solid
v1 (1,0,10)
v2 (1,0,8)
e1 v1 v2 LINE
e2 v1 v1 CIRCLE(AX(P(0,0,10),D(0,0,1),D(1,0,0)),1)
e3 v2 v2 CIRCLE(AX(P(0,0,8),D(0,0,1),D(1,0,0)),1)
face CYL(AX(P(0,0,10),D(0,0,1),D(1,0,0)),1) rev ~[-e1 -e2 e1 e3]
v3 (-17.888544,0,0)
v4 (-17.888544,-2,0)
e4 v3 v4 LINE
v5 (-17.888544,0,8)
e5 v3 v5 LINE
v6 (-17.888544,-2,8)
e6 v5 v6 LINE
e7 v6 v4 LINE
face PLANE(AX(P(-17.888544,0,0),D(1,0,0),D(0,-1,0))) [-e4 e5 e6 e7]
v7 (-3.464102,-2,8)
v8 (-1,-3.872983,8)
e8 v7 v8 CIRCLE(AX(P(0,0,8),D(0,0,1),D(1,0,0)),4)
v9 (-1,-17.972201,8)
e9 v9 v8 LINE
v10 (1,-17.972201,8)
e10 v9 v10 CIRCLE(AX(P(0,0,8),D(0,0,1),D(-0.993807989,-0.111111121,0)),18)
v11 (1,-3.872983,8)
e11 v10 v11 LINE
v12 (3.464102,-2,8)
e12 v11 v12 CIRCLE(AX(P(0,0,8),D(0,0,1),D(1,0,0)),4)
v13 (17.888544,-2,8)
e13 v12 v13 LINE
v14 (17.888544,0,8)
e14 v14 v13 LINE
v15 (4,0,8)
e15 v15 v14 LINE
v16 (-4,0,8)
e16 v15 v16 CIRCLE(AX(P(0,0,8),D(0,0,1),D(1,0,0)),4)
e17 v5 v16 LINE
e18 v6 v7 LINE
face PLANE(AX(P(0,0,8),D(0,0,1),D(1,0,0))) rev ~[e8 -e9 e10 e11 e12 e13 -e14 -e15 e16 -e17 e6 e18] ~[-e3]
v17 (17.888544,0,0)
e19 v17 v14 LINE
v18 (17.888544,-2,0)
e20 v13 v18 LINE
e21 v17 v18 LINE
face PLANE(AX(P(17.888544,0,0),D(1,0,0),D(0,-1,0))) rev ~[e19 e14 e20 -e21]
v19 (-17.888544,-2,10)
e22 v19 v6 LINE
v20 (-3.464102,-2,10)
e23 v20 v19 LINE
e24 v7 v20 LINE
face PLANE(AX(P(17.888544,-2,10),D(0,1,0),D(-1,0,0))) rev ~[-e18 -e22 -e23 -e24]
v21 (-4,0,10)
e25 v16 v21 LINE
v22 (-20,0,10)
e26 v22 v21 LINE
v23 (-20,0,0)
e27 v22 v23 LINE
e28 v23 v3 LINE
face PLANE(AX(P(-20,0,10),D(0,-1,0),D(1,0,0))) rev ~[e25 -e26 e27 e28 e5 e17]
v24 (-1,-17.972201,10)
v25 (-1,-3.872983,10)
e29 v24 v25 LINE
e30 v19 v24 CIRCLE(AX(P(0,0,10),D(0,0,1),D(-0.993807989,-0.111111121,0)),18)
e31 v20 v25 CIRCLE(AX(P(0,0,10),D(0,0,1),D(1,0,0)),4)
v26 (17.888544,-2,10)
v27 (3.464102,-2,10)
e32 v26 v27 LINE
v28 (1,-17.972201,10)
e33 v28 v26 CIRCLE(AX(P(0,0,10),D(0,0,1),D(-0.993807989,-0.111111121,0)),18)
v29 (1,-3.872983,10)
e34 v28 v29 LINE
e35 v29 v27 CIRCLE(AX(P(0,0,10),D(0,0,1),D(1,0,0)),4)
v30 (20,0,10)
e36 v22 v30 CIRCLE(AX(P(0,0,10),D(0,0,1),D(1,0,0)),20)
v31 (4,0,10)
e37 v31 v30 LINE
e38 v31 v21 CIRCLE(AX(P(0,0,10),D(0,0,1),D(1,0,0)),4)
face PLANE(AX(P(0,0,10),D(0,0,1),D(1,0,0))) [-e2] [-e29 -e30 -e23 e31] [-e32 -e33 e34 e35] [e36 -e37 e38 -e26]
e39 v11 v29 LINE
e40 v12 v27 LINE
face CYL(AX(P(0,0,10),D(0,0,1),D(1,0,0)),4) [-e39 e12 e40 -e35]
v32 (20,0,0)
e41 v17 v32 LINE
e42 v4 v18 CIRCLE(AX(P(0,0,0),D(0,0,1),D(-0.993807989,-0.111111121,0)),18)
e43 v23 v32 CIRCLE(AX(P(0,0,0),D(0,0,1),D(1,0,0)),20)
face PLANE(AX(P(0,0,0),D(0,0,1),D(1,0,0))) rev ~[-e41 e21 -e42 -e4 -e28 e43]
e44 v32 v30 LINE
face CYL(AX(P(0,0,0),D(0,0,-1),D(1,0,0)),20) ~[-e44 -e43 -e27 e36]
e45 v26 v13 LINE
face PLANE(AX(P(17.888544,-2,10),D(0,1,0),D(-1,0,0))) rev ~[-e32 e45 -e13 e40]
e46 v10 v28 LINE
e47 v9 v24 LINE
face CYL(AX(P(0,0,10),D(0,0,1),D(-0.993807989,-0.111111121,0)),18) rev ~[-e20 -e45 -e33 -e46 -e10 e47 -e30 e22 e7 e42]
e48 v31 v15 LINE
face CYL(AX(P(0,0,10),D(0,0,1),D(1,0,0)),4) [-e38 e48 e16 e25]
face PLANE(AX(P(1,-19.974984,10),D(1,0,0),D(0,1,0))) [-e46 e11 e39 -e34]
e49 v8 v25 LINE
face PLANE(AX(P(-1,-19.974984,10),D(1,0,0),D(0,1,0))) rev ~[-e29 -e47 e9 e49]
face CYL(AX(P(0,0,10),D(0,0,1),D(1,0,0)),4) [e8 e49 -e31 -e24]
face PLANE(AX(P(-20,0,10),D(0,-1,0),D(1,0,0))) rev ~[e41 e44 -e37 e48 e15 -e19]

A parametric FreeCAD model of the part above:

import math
import FreeCAD as App
import Part
import Sketcher

V = App.Vector
Q = App.Units.Quantity

doc = App.newDocument("Part")
params = doc.addObject("Spreadsheet::Sheet", "Params")
for row, (alias, value) in enumerate([
    ("sketch1_diameter", "40 mm"),
    ("pad1_length", "10 mm"),
    ("sketch2_radius", "20 mm"),
    ("pocket1_length", "25 mm"),
    ("sketch3_radius", "20 mm"),
    ("pocket2_length", "25 mm"),
    ("sketch4_radius", "18 mm"),
    ("pocket3_length", "25 mm"),
    ("sketch5_height", "2 mm"),
    ("pocket4_length", "8 mm"),
    ("sketch6_width", "2 mm"),
    ("pad2_length", "2 mm"),
    ("sketch7_diameter", "8 mm"),
    ("pad3_length", "2 mm"),
    ("sketch8_diameter", "2 mm"),
    ("pocket5_length", "25 mm"),
], start=1):
    params.set(f"A{row}", alias)
    params.set(f"B{row}", "=" + value)
    params.setAlias(f"B{row}", alias)

body = doc.addObject("PartDesign::Body", "Body")

sketch1 = doc.addObject("Sketcher::SketchObject", "Sketch")
body.addObject(sketch1)
sketch1.AttachmentSupport = (doc.XY_Plane, [""])
sketch1.MapMode = "FlatFace"
sketch1.addGeometry(Part.Circle(V(0, 0, 0), V(0, 0, 1), 20), False)
sketch1.addConstraint(Sketcher.Constraint("Coincident", 0, 3, -1, 1))
sketch1.addConstraint(Sketcher.Constraint("Diameter", 0, Q("40 mm")))
sketch1.setExpression("Constraints[1]", "Params.sketch1_diameter")
pad1 = doc.addObject("PartDesign::Pad", "Pad")
body.addObject(pad1)
pad1.Profile = sketch1
pad1.setExpression("Length", "Params.pad1_length")

sketch2 = doc.addObject("Sketcher::SketchObject", "Sketch001")
body.addObject(sketch2)
sketch2.AttachmentSupport = (doc.XY_Plane, [""])
sketch2.MapMode = "FlatFace"
sketch2.AttachmentOffset = App.Placement(V(0, 0, 10), App.Rotation())
sketch2.addGeometry(Part.LineSegment(V(-20, 0, 0), V(20, 0, 0)), False)
sketch2.addGeometry(Part.ArcOfCircle(Part.Circle(V(0, 0, 0), V(0, 0, 1), 20), math.radians(0), math.radians(180)), False)
sketch2.addConstraint(Sketcher.Constraint("Coincident", 0, 1, 1, 2))
sketch2.addConstraint(Sketcher.Constraint("Coincident", 1, 1, 0, 2))
sketch2.addConstraint(Sketcher.Constraint("Horizontal", 0))
sketch2.addConstraint(Sketcher.Constraint("Coincident", 1, 3, -1, 1))
sketch2.addConstraint(Sketcher.Constraint("PointOnObject", 0, 1, -1))
sketch2.addConstraint(Sketcher.Constraint("Radius", 1, Q("20 mm")))
sketch2.setExpression("Constraints[5]", "Params.sketch2_radius")
pocket1 = doc.addObject("PartDesign::Pocket", "Pocket")
body.addObject(pocket1)
pocket1.Profile = sketch2
pocket1.setExpression("Length", "Params.pocket1_length")

sketch3 = doc.addObject("Sketcher::SketchObject", "Sketch002")
body.addObject(sketch3)
sketch3.AttachmentSupport = (doc.XY_Plane, [""])
sketch3.MapMode = "FlatFace"
sketch3.AttachmentOffset = App.Placement(V(0, 0, 10), App.Rotation())
sketch3.addGeometry(Part.LineSegment(V(-20, 0, 0), V(20, 0, 0)), False)
sketch3.addGeometry(Part.ArcOfCircle(Part.Circle(V(0, 0, 0), V(0, 0, 1), 20), math.radians(0), math.radians(180)), False)
sketch3.addConstraint(Sketcher.Constraint("Coincident", 0, 1, 1, 2))
sketch3.addConstraint(Sketcher.Constraint("Coincident", 1, 1, 0, 2))
sketch3.addConstraint(Sketcher.Constraint("Horizontal", 0))
sketch3.addConstraint(Sketcher.Constraint("Coincident", 1, 3, -1, 1))
sketch3.addConstraint(Sketcher.Constraint("PointOnObject", 0, 1, -1))
sketch3.addConstraint(Sketcher.Constraint("Radius", 1, Q("20 mm")))
sketch3.setExpression("Constraints[5]", "Params.sketch3_radius")
pocket2 = doc.addObject("PartDesign::Pocket", "Pocket001")
body.addObject(pocket2)
pocket2.Profile = sketch3
pocket2.setExpression("Length", "Params.pocket2_length")

sketch4 = doc.addObject("Sketcher::SketchObject", "Sketch003")
body.addObject(sketch4)
sketch4.AttachmentSupport = (doc.XY_Plane, [""])
sketch4.MapMode = "FlatFace"
sketch4.AttachmentOffset = App.Placement(V(0, 0, 10), App.Rotation())
sketch4.addGeometry(Part.ArcOfCircle(Part.Circle(V(0, 0, 0), V(0, 0, 1), 18), math.radians(-174), math.radians(-6)), False)
sketch4.addGeometry(Part.LineSegment(V(18, -2, 0), V(-18, -2, 0)), False)
sketch4.addConstraint(Sketcher.Constraint("Coincident", 0, 1, 1, 2))
sketch4.addConstraint(Sketcher.Constraint("Coincident", 1, 1, 0, 2))
sketch4.addConstraint(Sketcher.Constraint("Horizontal", 1))
sketch4.addConstraint(Sketcher.Constraint("Coincident", 0, 3, -1, 1))
sketch4.addConstraint(Sketcher.Constraint("Radius", 0, Q("18 mm")))
sketch4.addConstraint(Sketcher.Constraint("DistanceY", 0, 1, -1, 1, Q("2 mm")))
sketch4.setExpression("Constraints[4]", "Params.sketch4_radius")
pocket3 = doc.addObject("PartDesign::Pocket", "Pocket002")
body.addObject(pocket3)
pocket3.Profile = sketch4
pocket3.setExpression("Length", "Params.pocket3_length")

sketch5 = doc.addObject("Sketcher::SketchObject", "Sketch004")
body.addObject(sketch5)
sketch5.AttachmentSupport = (doc.XY_Plane, [""])
sketch5.MapMode = "FlatFace"
sketch5.addGeometry(Part.LineSegment(V(-17.9, -2, 0), V(-17.9, 0, 0)), False)
sketch5.addGeometry(Part.LineSegment(V(-17.9, 0, 0), V(17.9, 0, 0)), False)
sketch5.addGeometry(Part.LineSegment(V(17.9, 0, 0), V(17.9, -2, 0)), False)
sketch5.addGeometry(Part.LineSegment(V(17.9, -2, 0), V(-17.9, -2, 0)), False)
sketch5.addConstraint(Sketcher.Constraint("Coincident", 0, 2, 1, 1))
sketch5.addConstraint(Sketcher.Constraint("Coincident", 1, 2, 2, 1))
sketch5.addConstraint(Sketcher.Constraint("Coincident", 2, 2, 3, 1))
sketch5.addConstraint(Sketcher.Constraint("Coincident", 3, 2, 0, 1))
sketch5.addConstraint(Sketcher.Constraint("Vertical", 0))
sketch5.addConstraint(Sketcher.Constraint("Horizontal", 1))
sketch5.addConstraint(Sketcher.Constraint("Vertical", 2))
sketch5.addConstraint(Sketcher.Constraint("Horizontal", 3))
sketch5.addConstraint(Sketcher.Constraint("Symmetric", 0, 2, 1, 2, -1, 1))
sketch5.addConstraint(Sketcher.Constraint("DistanceY", 0, 1, 0, 2, Q("2 mm")))
sketch5.addConstraint(Sketcher.Constraint("DistanceX", 1, 1, 1, 2, Q("35.777088 mm")))
sketch5.setExpression("Constraints[9]", "Params.sketch5_height")
pocket4 = doc.addObject("PartDesign::Pocket", "Pocket003")
body.addObject(pocket4)
pocket4.Profile = sketch5
pocket4.setExpression("Length", "Params.pocket4_length")
pocket4.Reversed = True

sketch6 = doc.addObject("Sketcher::SketchObject", "Sketch005")
body.addObject(sketch6)
sketch6.AttachmentSupport = (doc.XY_Plane, [""])
sketch6.MapMode = "FlatFace"
sketch6.AttachmentOffset = App.Placement(V(0, 0, 10), App.Rotation())
sketch6.addGeometry(Part.LineSegment(V(-1, -2, 0), V(-1, -20, 0)), False)
sketch6.addGeometry(Part.LineSegment(V(-1, -20, 0), V(1, -20, 0)), False)
sketch6.addGeometry(Part.LineSegment(V(1, -20, 0), V(1, -2, 0)), False)
sketch6.addGeometry(Part.LineSegment(V(1, -2, 0), V(-1, -2, 0)), False)
sketch6.addConstraint(Sketcher.Constraint("Coincident", 0, 2, 1, 1))
sketch6.addConstraint(Sketcher.Constraint("Coincident", 1, 2, 2, 1))
sketch6.addConstraint(Sketcher.Constraint("Coincident", 2, 2, 3, 1))
sketch6.addConstraint(Sketcher.Constraint("Coincident", 3, 2, 0, 1))
sketch6.addConstraint(Sketcher.Constraint("Vertical", 0))
sketch6.addConstraint(Sketcher.Constraint("Horizontal", 1))
sketch6.addConstraint(Sketcher.Constraint("Vertical", 2))
sketch6.addConstraint(Sketcher.Constraint("Horizontal", 3))
sketch6.addConstraint(Sketcher.Constraint("DistanceX", 1, 1, 1, 2, Q("2 mm")))
sketch6.addConstraint(Sketcher.Constraint("DistanceX", 0, 2, -1, 1, Q("1 mm")))
sketch6.addConstraint(Sketcher.Constraint("DistanceY", 2, 2, -1, 1, Q("2 mm")))
sketch6.addConstraint(Sketcher.Constraint("DistanceY", 0, 2, 0, 1, Q("17.974984 mm")))
sketch6.setExpression("Constraints[8]", "Params.sketch6_width")
pad2 = doc.addObject("PartDesign::Pad", "Pad001")
body.addObject(pad2)
pad2.Profile = sketch6
pad2.setExpression("Length", "Params.pad2_length")
pad2.Reversed = True

sketch7 = doc.addObject("Sketcher::SketchObject", "Sketch006")
body.addObject(sketch7)
sketch7.AttachmentSupport = (doc.XY_Plane, [""])
sketch7.MapMode = "FlatFace"
sketch7.AttachmentOffset = App.Placement(V(0, 0, 10), App.Rotation())
sketch7.addGeometry(Part.Circle(V(0, 0, 0), V(0, 0, 1), 4), False)
sketch7.addConstraint(Sketcher.Constraint("Coincident", 0, 3, -1, 1))
sketch7.addConstraint(Sketcher.Constraint("Diameter", 0, Q("8 mm")))
sketch7.setExpression("Constraints[1]", "Params.sketch7_diameter")
pad3 = doc.addObject("PartDesign::Pad", "Pad002")
body.addObject(pad3)
pad3.Profile = sketch7
pad3.setExpression("Length", "Params.pad3_length")
pad3.Reversed = True

sketch8 = doc.addObject("Sketcher::SketchObject", "Sketch007")
body.addObject(sketch8)
sketch8.AttachmentSupport = (doc.XY_Plane, [""])
sketch8.MapMode = "FlatFace"
sketch8.AttachmentOffset = App.Placement(V(0, 0, 10), App.Rotation())
sketch8.addGeometry(Part.Circle(V(0, 0, 0), V(0, 0, 1), 1), False)
sketch8.addConstraint(Sketcher.Constraint("Coincident", 0, 3, -1, 1))
sketch8.addConstraint(Sketcher.Constraint("Diameter", 0, Q("2 mm")))
sketch8.setExpression("Constraints[1]", "Params.sketch8_diameter")
pocket5 = doc.addObject("PartDesign::Pocket", "Pocket004")
body.addObject(pocket5)
pocket5.Profile = sketch8
pocket5.setExpression("Length", "Params.pocket5_length")

doc.recompute()
